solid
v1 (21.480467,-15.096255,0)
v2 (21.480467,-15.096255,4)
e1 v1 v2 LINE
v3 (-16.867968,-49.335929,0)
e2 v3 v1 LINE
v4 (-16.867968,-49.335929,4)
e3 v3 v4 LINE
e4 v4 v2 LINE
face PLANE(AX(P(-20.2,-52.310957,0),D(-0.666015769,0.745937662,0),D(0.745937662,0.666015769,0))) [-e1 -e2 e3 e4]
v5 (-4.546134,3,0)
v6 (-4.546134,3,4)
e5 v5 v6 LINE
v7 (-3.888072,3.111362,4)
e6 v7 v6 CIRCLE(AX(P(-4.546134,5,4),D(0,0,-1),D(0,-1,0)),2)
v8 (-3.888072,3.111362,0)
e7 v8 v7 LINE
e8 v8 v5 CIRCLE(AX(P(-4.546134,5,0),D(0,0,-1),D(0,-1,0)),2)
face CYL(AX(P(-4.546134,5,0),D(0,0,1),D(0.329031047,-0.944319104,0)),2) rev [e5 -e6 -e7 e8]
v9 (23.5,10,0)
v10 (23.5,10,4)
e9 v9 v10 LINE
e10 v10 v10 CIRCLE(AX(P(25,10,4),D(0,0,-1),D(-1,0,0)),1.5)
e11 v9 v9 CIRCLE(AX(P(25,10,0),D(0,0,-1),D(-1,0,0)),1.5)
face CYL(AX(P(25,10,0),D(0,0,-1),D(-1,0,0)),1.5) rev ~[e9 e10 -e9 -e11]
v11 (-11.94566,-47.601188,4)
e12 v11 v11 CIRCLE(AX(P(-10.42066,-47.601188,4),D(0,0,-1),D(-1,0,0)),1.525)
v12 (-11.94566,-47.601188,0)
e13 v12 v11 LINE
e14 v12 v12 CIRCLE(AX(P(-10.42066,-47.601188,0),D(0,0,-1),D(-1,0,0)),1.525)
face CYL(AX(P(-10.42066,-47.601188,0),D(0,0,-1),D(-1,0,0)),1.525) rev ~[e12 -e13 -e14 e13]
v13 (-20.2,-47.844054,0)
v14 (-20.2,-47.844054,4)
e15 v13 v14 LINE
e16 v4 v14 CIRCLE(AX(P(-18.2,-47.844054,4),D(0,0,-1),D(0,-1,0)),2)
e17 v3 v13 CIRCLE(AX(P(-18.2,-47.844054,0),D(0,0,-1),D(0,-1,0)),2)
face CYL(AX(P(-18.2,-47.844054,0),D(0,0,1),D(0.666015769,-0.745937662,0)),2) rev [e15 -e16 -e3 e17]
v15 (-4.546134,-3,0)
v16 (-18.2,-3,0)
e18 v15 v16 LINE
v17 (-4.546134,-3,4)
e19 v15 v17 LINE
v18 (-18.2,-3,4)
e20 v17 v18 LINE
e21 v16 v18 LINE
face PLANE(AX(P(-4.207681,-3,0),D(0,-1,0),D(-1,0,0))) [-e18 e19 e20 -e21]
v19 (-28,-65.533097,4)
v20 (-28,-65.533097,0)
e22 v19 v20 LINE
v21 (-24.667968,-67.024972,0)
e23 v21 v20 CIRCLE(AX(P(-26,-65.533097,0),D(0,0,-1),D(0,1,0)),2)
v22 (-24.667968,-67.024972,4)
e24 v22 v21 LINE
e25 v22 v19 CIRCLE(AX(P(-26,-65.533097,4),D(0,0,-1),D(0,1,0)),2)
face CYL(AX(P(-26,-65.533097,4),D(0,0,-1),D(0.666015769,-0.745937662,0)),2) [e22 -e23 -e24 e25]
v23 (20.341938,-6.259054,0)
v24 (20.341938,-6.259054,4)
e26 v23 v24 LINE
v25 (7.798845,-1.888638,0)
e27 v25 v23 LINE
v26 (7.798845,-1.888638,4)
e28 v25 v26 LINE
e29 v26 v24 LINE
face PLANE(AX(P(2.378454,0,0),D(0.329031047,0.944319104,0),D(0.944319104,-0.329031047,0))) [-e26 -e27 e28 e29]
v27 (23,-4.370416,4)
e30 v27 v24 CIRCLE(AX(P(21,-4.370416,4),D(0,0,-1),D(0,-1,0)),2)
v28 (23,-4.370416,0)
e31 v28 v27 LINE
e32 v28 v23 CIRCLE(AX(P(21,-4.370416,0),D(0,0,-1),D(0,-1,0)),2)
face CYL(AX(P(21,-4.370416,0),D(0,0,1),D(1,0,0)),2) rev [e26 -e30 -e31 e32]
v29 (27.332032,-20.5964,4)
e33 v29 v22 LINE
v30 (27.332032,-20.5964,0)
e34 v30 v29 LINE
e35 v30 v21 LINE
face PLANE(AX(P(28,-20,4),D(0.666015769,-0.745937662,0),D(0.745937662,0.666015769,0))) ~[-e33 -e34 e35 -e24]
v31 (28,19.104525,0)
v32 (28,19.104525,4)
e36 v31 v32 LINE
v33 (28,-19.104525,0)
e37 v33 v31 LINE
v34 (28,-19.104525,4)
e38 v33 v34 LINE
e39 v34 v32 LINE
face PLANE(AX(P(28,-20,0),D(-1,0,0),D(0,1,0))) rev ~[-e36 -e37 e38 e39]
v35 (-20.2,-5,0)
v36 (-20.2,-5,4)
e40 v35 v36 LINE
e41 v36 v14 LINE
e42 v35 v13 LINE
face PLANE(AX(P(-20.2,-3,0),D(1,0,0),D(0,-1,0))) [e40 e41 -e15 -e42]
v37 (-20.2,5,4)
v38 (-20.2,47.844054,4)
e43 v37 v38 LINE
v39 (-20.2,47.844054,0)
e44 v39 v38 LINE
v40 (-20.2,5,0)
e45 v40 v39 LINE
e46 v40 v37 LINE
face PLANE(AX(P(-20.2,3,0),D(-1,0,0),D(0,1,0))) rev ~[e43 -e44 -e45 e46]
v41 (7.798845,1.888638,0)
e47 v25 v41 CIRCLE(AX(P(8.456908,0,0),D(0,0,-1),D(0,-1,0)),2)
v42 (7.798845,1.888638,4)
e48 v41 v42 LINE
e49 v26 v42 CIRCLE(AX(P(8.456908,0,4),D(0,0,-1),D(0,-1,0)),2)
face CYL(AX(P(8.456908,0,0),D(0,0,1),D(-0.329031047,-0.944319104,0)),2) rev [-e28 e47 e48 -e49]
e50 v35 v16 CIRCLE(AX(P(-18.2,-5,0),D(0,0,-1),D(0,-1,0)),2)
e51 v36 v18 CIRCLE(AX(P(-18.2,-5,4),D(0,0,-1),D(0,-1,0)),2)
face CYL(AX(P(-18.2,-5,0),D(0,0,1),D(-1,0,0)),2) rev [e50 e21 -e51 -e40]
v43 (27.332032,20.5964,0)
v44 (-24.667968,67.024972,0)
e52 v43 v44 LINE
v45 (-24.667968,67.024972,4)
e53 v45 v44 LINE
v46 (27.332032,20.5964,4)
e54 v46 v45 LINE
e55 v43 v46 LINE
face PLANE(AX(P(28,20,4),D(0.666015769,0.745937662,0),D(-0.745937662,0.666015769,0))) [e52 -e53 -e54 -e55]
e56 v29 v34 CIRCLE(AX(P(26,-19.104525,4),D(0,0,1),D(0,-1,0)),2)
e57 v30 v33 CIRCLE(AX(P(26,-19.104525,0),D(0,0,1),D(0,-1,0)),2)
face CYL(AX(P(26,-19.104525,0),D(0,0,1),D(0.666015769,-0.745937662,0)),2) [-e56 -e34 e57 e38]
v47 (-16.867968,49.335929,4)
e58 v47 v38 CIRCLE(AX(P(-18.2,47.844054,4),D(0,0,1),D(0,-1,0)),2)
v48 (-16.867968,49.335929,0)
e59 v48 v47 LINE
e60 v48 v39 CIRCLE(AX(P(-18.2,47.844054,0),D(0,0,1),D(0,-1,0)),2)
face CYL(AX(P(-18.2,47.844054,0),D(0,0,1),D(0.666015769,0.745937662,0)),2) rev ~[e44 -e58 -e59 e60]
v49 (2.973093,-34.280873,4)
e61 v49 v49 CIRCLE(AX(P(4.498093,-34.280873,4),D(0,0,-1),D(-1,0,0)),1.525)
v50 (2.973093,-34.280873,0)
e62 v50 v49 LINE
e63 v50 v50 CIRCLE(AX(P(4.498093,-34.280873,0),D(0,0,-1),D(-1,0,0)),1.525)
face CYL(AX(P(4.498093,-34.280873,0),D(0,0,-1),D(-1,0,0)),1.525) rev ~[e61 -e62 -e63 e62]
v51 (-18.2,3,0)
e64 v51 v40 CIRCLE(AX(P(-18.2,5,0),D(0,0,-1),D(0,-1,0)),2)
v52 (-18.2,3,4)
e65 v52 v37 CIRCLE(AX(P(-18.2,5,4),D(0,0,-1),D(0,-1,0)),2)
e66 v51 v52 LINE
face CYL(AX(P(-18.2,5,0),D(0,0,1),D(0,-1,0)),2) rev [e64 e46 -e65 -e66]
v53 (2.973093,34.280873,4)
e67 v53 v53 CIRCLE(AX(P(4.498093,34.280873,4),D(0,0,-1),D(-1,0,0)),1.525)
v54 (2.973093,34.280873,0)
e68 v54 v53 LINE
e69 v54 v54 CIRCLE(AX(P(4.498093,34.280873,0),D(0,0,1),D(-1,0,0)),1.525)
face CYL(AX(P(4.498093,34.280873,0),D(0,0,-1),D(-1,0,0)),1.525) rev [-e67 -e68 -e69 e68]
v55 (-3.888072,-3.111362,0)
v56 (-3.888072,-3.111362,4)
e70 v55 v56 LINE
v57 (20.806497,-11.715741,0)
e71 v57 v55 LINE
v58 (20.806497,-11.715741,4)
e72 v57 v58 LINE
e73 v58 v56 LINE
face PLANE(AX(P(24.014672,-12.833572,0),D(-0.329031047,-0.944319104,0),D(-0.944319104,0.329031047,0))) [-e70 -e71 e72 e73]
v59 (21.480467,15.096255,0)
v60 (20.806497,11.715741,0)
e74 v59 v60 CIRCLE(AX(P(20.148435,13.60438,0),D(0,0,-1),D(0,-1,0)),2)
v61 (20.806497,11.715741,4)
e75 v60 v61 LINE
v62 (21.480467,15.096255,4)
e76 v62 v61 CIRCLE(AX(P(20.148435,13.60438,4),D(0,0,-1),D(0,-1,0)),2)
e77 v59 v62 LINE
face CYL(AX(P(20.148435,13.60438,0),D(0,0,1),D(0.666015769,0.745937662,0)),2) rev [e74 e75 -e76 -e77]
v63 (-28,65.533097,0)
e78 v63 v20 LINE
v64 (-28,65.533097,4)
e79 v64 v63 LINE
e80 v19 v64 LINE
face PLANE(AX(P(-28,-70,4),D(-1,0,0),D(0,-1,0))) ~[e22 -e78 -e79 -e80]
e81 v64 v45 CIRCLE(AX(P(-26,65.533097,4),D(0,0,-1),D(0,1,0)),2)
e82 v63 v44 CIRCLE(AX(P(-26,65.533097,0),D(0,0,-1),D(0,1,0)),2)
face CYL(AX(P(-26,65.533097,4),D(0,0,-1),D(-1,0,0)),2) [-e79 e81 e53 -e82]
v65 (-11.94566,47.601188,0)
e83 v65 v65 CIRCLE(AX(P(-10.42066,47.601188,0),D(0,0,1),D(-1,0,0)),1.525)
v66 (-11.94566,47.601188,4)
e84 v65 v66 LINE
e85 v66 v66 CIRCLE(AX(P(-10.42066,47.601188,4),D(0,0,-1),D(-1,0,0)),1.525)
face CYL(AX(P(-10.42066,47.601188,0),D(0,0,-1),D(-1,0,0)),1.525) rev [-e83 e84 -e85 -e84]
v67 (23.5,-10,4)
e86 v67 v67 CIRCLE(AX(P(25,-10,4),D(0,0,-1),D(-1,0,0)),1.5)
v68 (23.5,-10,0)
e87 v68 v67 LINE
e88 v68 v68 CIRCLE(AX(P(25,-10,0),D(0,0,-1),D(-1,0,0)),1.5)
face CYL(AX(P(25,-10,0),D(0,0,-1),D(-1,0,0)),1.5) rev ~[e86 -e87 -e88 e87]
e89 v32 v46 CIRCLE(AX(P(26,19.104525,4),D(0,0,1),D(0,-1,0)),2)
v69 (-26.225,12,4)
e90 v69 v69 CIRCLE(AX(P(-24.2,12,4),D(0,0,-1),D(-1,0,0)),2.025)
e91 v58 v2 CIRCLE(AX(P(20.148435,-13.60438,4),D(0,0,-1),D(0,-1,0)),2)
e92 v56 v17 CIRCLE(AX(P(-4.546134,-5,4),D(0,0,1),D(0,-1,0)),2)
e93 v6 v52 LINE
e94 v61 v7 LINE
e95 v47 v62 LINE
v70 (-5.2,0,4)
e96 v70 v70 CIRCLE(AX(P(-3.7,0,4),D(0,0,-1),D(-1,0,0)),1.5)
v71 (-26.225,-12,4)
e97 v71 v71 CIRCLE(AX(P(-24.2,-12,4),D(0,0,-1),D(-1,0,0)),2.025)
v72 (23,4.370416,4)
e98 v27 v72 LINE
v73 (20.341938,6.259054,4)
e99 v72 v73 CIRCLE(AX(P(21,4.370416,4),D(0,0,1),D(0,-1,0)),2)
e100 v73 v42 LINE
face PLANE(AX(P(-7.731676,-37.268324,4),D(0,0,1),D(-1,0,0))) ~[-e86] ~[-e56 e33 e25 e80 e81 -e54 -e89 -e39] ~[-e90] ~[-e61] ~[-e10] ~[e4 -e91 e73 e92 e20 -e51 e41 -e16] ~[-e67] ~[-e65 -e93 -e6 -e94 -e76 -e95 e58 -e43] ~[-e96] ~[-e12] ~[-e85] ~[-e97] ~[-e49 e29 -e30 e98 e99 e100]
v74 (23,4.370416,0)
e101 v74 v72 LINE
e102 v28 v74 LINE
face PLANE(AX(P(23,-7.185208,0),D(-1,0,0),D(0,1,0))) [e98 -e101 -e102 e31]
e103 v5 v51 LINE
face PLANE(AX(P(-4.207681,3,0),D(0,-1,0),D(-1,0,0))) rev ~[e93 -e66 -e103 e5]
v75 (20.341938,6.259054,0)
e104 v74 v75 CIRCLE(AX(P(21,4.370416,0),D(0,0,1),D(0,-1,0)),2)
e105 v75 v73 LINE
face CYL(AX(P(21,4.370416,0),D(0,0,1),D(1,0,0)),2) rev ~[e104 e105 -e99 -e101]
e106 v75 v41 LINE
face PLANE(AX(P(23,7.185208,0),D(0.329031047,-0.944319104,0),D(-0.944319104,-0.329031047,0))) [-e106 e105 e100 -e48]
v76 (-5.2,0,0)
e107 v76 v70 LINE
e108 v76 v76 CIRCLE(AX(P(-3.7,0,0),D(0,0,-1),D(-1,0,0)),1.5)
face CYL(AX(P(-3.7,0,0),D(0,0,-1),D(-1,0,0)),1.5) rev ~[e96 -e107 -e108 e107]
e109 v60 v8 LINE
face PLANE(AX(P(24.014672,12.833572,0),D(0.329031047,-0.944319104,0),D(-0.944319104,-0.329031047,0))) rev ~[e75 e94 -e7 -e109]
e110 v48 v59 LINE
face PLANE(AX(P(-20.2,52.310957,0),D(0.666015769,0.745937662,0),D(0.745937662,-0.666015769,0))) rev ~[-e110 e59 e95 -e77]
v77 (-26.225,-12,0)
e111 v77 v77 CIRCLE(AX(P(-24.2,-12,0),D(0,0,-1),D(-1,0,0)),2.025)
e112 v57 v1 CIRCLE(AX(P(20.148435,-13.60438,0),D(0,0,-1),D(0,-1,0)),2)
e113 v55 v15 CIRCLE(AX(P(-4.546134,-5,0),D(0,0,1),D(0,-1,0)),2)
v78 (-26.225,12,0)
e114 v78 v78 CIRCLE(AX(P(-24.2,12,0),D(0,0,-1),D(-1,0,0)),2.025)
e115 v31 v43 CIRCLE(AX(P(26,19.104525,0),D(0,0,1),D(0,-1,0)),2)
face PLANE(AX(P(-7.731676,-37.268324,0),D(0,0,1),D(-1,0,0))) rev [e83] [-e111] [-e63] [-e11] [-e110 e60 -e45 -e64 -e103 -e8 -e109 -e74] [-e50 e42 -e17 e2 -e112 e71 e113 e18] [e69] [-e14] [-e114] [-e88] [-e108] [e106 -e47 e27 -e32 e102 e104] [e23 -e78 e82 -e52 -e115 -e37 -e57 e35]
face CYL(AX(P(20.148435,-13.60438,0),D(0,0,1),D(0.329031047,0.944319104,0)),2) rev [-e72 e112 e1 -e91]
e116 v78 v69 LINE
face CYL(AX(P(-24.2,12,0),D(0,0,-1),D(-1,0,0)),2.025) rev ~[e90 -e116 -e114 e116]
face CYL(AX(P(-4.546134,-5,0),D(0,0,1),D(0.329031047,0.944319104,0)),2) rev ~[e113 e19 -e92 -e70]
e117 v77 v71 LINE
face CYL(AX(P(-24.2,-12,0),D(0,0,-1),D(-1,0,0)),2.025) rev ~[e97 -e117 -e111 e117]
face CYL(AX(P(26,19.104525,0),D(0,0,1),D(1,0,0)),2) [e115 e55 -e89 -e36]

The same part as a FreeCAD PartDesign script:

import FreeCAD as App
import Part
import Sketcher
from FreeCAD import Vector


def edges_at(feature, points):
    """Names of the edges that pass closest to the given points."""
    edges = feature.Shape.Edges
    near = lambda p: min(range(len(edges)), key=lambda i: edges[i].distToShape(Part.Vertex(*p))[0])
    return sorted({f"Edge{near(p) + 1}" for p in points})

doc = App.newDocument("Part")
body = doc.addObject("PartDesign::Body", "Body")

sketch1 = body.newObject("Sketcher::SketchObject", "Sketch")
sketch1.AttachmentSupport = (doc.getObject("XY_Plane"), [""])
sketch1.MapMode = "FlatFace"
sketch1.addGeometry(Part.LineSegment(Vector(-28, 20, 0), Vector(-28, -20, 0)), False)
sketch1.addGeometry(Part.LineSegment(Vector(-28, -20, 0), Vector(28, -20, 0)), False)
sketch1.addGeometry(Part.LineSegment(Vector(28, -20, 0), Vector(28, 20, 0)), False)
sketch1.addGeometry(Part.LineSegment(Vector(28, 20, 0), Vector(-28, 20, 0)), False)
sketch1.addConstraint(Sketcher.Constraint("Coincident", 0, 2, 1, 1))
sketch1.addConstraint(Sketcher.Constraint("Coincident", 1, 2, 2, 1))
sketch1.addConstraint(Sketcher.Constraint("Coincident", 2, 2, 3, 1))
sketch1.addConstraint(Sketcher.Constraint("Coincident", 3, 2, 0, 1))
sketch1.addConstraint(Sketcher.Constraint("Vertical", 0))
sketch1.addConstraint(Sketcher.Constraint("Horizontal", 1))
sketch1.addConstraint(Sketcher.Constraint("Vertical", 2))
sketch1.addConstraint(Sketcher.Constraint("Horizontal", 3))
sketch1.addConstraint(Sketcher.Constraint("Symmetric", 0, 2, 2, 2, -1, 1))
sketch1.addConstraint(Sketcher.Constraint("DistanceX", 1, 1, 1, 2, 56.0))
sketch1.addConstraint(Sketcher.Constraint("DistanceY", 0, 2, 0, 1, 40.0))
pad1 = body.newObject("PartDesign::Pad", "Pad")
pad1.Profile = sketch1
pad1.Length = 4

sketch2 = body.newObject("Sketcher::SketchObject", "Sketch001")
sketch2.AttachmentSupport = (doc.getObject("XY_Plane"), [""])
sketch2.MapMode = "FlatFace"
sketch2.addGeometry(Part.Circle(Vector(-3.7, 0, 0), Vector(0, 0, 1), 1.5), False)
sketch2.addGeometry(Part.Circle(Vector(25, 10, 0), Vector(0, 0, 1), 1.5), False)
sketch2.addGeometry(Part.Circle(Vector(25, -10, 0), Vector(0, 0, 1), 1.5), False)
sketch2.addGeometry(Part.Circle(Vector(-24.2, -12, 0), Vector(0, 0, 1), 2), False)
sketch2.addGeometry(Part.Circle(Vector(-24.2, 12, 0), Vector(0, 0, 1), 2), False)
sketch2.addGeometry(Part.Circle(Vector(-7.7, -9, 0), Vector(0, 0, 1), 1), False)
sketch2.addGeometry(Part.Circle(Vector(-15.7, -9, 0), Vector(0, 0, 1), 1), False)
sketch2.addConstraint(Sketcher.Constraint("Equal", 0, 1))
sketch2.addConstraint(Sketcher.Constraint("Equal", 1, 2))
sketch2.addConstraint(Sketcher.Constraint("Equal", 3, 4))
sketch2.addConstraint(Sketcher.Constraint("Equal", 5, 6))
sketch2.addConstraint(Sketcher.Constraint("Symmetric", 1, 3, 2, 3, -1))
sketch2.addConstraint(Sketcher.Constraint("Symmetric", 3, 3, 4, 3, -1))
sketch2.addConstraint(Sketcher.Constraint("PointOnObject", 0, 3, -1))
sketch2.addConstraint(Sketcher.Constraint("Horizontal", 5, 3, 6, 3))
sketch2.addConstraint(Sketcher.Constraint("Diameter", 0, 3.0))
sketch2.addConstraint(Sketcher.Constraint("Diameter", 3, 4.05))
sketch2.addConstraint(Sketcher.Constraint("Diameter", 5, 2.05))
sketch2.addConstraint(Sketcher.Constraint("DistanceX", -1, 1, 1, 3, 25.0))
sketch2.addConstraint(Sketcher.Constraint("DistanceY", -1, 1, 1, 3, 10.0))
sketch2.addConstraint(Sketcher.Constraint("DistanceY", 3, 3, -1, 1, 12.0))
sketch2.addConstraint(Sketcher.Constraint("DistanceY", 5, 3, -1, 1, 9.0))
sketch2.addConstraint(Sketcher.Constraint("DistanceX", 5, 3, 0, 3, 4.0))
sketch2.addConstraint(Sketcher.Constraint("DistanceX", 6, 3, 5, 3, 8.0))
sketch2.addConstraint(Sketcher.Constraint("DistanceX", 0, 3, -1, 1, 3.7))
sketch2.addConstraint(Sketcher.Constraint("DistanceX", 3, 3, -1, 1, 24.2))
pocket1 = body.newObject("PartDesign::Pocket", "Pocket")
pocket1.Profile = sketch2
pocket1.Length = 34
pocket1.Reversed = True

sketch3 = body.newObject("Sketcher::SketchObject", "Sketch002")
sketch3.AttachmentSupport = (doc.getObject("XY_Plane"), [""])
sketch3.MapMode = "FlatFace"
sketch3.AttachmentOffset = App.Placement(Vector(0, 0, 4), App.Rotation())
sketch3.addGeometry(Part.LineSegment(Vector(28, 20, 0), Vector(-28, 70, 0)), False)
sketch3.addGeometry(Part.LineSegment(Vector(-28, 70, 0), Vector(-28, 20, 0)), False)
sketch3.addGeometry(Part.LineSegment(Vector(-28, 20, 0), Vector(28, 20, 0)), False)
sketch3.addConstraint(Sketcher.Constraint("Coincident", 0, 2, 1, 1))
sketch3.addConstraint(Sketcher.Constraint("Coincident", 1, 2, 2, 1))
sketch3.addConstraint(Sketcher.Constraint("Coincident", 2, 2, 0, 1))
sketch3.addConstraint(Sketcher.Constraint("Vertical", 1))
sketch3.addConstraint(Sketcher.Constraint("Horizontal", 2))
sketch3.addConstraint(Sketcher.Constraint("DistanceX", 2, 1, 2, 2, 56.0))
sketch3.addConstraint(Sketcher.Constraint("DistanceY", 1, 2, 1, 1, 50.0))
sketch3.addConstraint(Sketcher.Constraint("DistanceX", 0, 2, -1, 1, 28.0))
sketch3.addConstraint(Sketcher.Constraint("DistanceY", -1, 1, 0, 2, 70.0))
pad2 = body.newObject("PartDesign::Pad", "Pad001")
pad2.Profile = sketch3
pad2.Length = 4
pad2.Reversed = True
doc.recompute()

mirrored = body.newObject("PartDesign::Mirrored", "Mirrored")
mirrored.Originals = [pad2]
mirrored.MirrorPlane = (doc.getObject("XZ_Plane"), [""])
body.Tip = mirrored

sketch4 = body.newObject("Sketcher::SketchObject", "Sketch003")
sketch4.AttachmentSupport = (doc.getObject("XY_Plane"), [""])
sketch4.MapMode = "FlatFace"
sketch4.addGeometry(Part.Circle(Vector(-10.4, -47.6, 0), Vector(0, 0, 1), 1.5), False)
sketch4.addGeometry(Part.Circle(Vector(4.5, -34.3, 0), Vector(0, 0, 1), 1.5), False)
sketch4.addConstraint(Sketcher.Constraint("Equal", 0, 1))
sketch4.addConstraint(Sketcher.Constraint("Diameter", 0, 3.05))
sketch4.addConstraint(Sketcher.Constraint("DistanceX", 0, 3, -1, 1, 10.42066))
sketch4.addConstraint(Sketcher.Constraint("DistanceY", 0, 3, -1, 1, 47.601188))
sketch4.addConstraint(Sketcher.Constraint("DistanceX", -1, 1, 1, 3, 4.498093))
sketch4.addConstraint(Sketcher.Constraint("DistanceY", 1, 3, -1, 1, 34.280873))
pocket2 = body.newObject("PartDesign::Pocket", "Pocket001")
pocket2.Profile = sketch4
pocket2.Length = 10
pocket2.Reversed = True
doc.recompute()

mirrored2 = body.newObject("PartDesign::Mirrored", "Mirrored001")
mirrored2.Originals = [pocket2]
mirrored2.MirrorPlane = (doc.getObject("XZ_Plane"), [""])
body.Tip = mirrored2
doc.recompute()

fillet = body.newObject("PartDesign::Fillet", "Fillet")
fillet.Base = (mirrored2, edges_at(mirrored2, [
    (-28, 70, 2),
    (-28, -70, 2),
    (28, -20, 2),
    (28, 20, 2),
]))
fillet.Radius = 2

sketch5 = body.newObject("Sketcher::SketchObject", "Sketch004")
sketch5.AttachmentSupport = (doc.getObject("XY_Plane"), [""])
sketch5.MapMode = "FlatFace"
sketch5.addGeometry(Part.LineSegment(Vector(2, 0, 0), Vector(23, 7, 0)), False)
sketch5.addGeometry(Part.LineSegment(Vector(23, 7, 0), Vector(23, -7, 0)), False)
sketch5.addGeometry(Part.LineSegment(Vector(23, -7, 0), Vector(2, 0, 0)), False)
sketch5.addGeometry(Part.LineSegment(Vector(-20, 52, 0), Vector(24, 13, 0)), False)
sketch5.addGeometry(Part.LineSegment(Vector(24, 13, 0), Vector(-4, 3, 0)), False)
sketch5.addGeometry(Part.LineSegment(Vector(-4, 3, 0), Vector(-20, 3, 0)), False)
sketch5.addGeometry(Part.LineSegment(Vector(-20, 3, 0), Vector(-20, 52, 0)), False)
sketch5.addGeometry(Part.LineSegment(Vector(-20, -3, 0), Vector(-4, -3, 0)), False)
sketch5.addGeometry(Part.LineSegment(Vector(-4, -3, 0), Vector(24, -13, 0)), False)
sketch5.addGeometry(Part.LineSegment(Vector(24, -13, 0), Vector(-20, -52, 0)), False)
sketch5.addGeometry(Part.LineSegment(Vector(-20, -52, 0), Vector(-20, -3, 0)), False)
sketch5.addConstraint(Sketcher.Constraint("Coincident", 0, 2, 1, 1))
sketch5.addConstraint(Sketcher.Constraint("Coincident", 1, 2, 2, 1))
sketch5.addConstraint(Sketcher.Constraint("Coincident", 2, 2, 0, 1))
sketch5.addConstraint(Sketcher.Constraint("Coincident", 3, 2, 4, 1))
sketch5.addConstraint(Sketcher.Constraint("Coincident", 4, 2, 5, 1))
sketch5.addConstraint(Sketcher.Constraint("Coincident", 5, 2, 6, 1))
sketch5.addConstraint(Sketcher.Constraint("Coincident", 6, 2, 3, 1))
sketch5.addConstraint(Sketcher.Constraint("Coincident", 7, 2, 8, 1))
sketch5.addConstraint(Sketcher.Constraint("Coincident", 8, 2, 9, 1))
sketch5.addConstraint(Sketcher.Constraint("Coincident", 9, 2, 10, 1))
sketch5.addConstraint(Sketcher.Constraint("Coincident", 10, 2, 7, 1))
sketch5.addConstraint(Sketcher.Constraint("Vertical", 1))
sketch5.addConstraint(Sketcher.Constraint("Horizontal", 5))
sketch5.addConstraint(Sketcher.Constraint("Vertical", 6))
sketch5.addConstraint(Sketcher.Constraint("Horizontal", 7))
sketch5.addConstraint(Sketcher.Constraint("Vertical", 10))
sketch5.addConstraint(Sketcher.Constraint("Symmetric", 4, 2, 7, 2, -1))
sketch5.addConstraint(Sketcher.Constraint("Symmetric", 3, 2, 8, 2, -1))
sketch5.addConstraint(Sketcher.Constraint("Symmetric", 6, 2, 9, 2, -1))
sketch5.addConstraint(Sketcher.Constraint("PointOnObject", 2, 2, -1))
sketch5.addConstraint(Sketcher.Constraint("Parallel", 0, 4))
sketch5.addConstraint(Sketcher.Constraint("Parallel", 2, 8))
sketch5.addConstraint(Sketcher.Constraint("DistanceX", -1, 1, 0, 2, 23.0))
sketch5.addConstraint(Sketcher.Constraint("DistanceY", -1, 1, 4, 2, 3.0))
sketch5.addConstraint(Sketcher.Constraint("DistanceX", 5, 2, -1, 1, 20.2))
sketch5.addConstraint(Sketcher.Constraint("DistanceX", 5, 2, 5, 1, 15.992319))
sketch5.addConstraint(Sketcher.Constraint("Distance", 3, 59.27395))
sketch5.addConstraint(Sketcher.Constraint("DistanceY", 1, 2, 1, 1, 14.370416))
sketch5.addConstraint(Sketcher.Constraint("DistanceY", 6, 1, 6, 2, 49.310957))
sketch5.addConstraint(Sketcher.Constraint("DistanceX", -1, 1, 3, 2, 24.014672))
pocket3 = body.newObject("PartDesign::Pocket", "Pocket002")
pocket3.Profile = sketch5
pocket3.Length = 22
pocket3.Reversed = True
doc.recompute()

fillet2 = body.newObject("PartDesign::Fillet", "Fillet001")
fillet2.Base = (pocket3, edges_at(pocket3, [
    (24.015, -12.834, 2),
    (-4.208, -3, 2),
    (-20.2, -3, 2),
    (-20.2, -52.311, 2),
    (-20.2, 52.311, 2),
    (-20.2, 3, 2),
    (-4.208, 3, 2),
    (24.015, 12.834, 2),
    (23, -7.185, 2),
    (23, 7.185, 2),
    (2.378, 0, 2),
]))
fillet2.Radius = 2

doc.recompute()
